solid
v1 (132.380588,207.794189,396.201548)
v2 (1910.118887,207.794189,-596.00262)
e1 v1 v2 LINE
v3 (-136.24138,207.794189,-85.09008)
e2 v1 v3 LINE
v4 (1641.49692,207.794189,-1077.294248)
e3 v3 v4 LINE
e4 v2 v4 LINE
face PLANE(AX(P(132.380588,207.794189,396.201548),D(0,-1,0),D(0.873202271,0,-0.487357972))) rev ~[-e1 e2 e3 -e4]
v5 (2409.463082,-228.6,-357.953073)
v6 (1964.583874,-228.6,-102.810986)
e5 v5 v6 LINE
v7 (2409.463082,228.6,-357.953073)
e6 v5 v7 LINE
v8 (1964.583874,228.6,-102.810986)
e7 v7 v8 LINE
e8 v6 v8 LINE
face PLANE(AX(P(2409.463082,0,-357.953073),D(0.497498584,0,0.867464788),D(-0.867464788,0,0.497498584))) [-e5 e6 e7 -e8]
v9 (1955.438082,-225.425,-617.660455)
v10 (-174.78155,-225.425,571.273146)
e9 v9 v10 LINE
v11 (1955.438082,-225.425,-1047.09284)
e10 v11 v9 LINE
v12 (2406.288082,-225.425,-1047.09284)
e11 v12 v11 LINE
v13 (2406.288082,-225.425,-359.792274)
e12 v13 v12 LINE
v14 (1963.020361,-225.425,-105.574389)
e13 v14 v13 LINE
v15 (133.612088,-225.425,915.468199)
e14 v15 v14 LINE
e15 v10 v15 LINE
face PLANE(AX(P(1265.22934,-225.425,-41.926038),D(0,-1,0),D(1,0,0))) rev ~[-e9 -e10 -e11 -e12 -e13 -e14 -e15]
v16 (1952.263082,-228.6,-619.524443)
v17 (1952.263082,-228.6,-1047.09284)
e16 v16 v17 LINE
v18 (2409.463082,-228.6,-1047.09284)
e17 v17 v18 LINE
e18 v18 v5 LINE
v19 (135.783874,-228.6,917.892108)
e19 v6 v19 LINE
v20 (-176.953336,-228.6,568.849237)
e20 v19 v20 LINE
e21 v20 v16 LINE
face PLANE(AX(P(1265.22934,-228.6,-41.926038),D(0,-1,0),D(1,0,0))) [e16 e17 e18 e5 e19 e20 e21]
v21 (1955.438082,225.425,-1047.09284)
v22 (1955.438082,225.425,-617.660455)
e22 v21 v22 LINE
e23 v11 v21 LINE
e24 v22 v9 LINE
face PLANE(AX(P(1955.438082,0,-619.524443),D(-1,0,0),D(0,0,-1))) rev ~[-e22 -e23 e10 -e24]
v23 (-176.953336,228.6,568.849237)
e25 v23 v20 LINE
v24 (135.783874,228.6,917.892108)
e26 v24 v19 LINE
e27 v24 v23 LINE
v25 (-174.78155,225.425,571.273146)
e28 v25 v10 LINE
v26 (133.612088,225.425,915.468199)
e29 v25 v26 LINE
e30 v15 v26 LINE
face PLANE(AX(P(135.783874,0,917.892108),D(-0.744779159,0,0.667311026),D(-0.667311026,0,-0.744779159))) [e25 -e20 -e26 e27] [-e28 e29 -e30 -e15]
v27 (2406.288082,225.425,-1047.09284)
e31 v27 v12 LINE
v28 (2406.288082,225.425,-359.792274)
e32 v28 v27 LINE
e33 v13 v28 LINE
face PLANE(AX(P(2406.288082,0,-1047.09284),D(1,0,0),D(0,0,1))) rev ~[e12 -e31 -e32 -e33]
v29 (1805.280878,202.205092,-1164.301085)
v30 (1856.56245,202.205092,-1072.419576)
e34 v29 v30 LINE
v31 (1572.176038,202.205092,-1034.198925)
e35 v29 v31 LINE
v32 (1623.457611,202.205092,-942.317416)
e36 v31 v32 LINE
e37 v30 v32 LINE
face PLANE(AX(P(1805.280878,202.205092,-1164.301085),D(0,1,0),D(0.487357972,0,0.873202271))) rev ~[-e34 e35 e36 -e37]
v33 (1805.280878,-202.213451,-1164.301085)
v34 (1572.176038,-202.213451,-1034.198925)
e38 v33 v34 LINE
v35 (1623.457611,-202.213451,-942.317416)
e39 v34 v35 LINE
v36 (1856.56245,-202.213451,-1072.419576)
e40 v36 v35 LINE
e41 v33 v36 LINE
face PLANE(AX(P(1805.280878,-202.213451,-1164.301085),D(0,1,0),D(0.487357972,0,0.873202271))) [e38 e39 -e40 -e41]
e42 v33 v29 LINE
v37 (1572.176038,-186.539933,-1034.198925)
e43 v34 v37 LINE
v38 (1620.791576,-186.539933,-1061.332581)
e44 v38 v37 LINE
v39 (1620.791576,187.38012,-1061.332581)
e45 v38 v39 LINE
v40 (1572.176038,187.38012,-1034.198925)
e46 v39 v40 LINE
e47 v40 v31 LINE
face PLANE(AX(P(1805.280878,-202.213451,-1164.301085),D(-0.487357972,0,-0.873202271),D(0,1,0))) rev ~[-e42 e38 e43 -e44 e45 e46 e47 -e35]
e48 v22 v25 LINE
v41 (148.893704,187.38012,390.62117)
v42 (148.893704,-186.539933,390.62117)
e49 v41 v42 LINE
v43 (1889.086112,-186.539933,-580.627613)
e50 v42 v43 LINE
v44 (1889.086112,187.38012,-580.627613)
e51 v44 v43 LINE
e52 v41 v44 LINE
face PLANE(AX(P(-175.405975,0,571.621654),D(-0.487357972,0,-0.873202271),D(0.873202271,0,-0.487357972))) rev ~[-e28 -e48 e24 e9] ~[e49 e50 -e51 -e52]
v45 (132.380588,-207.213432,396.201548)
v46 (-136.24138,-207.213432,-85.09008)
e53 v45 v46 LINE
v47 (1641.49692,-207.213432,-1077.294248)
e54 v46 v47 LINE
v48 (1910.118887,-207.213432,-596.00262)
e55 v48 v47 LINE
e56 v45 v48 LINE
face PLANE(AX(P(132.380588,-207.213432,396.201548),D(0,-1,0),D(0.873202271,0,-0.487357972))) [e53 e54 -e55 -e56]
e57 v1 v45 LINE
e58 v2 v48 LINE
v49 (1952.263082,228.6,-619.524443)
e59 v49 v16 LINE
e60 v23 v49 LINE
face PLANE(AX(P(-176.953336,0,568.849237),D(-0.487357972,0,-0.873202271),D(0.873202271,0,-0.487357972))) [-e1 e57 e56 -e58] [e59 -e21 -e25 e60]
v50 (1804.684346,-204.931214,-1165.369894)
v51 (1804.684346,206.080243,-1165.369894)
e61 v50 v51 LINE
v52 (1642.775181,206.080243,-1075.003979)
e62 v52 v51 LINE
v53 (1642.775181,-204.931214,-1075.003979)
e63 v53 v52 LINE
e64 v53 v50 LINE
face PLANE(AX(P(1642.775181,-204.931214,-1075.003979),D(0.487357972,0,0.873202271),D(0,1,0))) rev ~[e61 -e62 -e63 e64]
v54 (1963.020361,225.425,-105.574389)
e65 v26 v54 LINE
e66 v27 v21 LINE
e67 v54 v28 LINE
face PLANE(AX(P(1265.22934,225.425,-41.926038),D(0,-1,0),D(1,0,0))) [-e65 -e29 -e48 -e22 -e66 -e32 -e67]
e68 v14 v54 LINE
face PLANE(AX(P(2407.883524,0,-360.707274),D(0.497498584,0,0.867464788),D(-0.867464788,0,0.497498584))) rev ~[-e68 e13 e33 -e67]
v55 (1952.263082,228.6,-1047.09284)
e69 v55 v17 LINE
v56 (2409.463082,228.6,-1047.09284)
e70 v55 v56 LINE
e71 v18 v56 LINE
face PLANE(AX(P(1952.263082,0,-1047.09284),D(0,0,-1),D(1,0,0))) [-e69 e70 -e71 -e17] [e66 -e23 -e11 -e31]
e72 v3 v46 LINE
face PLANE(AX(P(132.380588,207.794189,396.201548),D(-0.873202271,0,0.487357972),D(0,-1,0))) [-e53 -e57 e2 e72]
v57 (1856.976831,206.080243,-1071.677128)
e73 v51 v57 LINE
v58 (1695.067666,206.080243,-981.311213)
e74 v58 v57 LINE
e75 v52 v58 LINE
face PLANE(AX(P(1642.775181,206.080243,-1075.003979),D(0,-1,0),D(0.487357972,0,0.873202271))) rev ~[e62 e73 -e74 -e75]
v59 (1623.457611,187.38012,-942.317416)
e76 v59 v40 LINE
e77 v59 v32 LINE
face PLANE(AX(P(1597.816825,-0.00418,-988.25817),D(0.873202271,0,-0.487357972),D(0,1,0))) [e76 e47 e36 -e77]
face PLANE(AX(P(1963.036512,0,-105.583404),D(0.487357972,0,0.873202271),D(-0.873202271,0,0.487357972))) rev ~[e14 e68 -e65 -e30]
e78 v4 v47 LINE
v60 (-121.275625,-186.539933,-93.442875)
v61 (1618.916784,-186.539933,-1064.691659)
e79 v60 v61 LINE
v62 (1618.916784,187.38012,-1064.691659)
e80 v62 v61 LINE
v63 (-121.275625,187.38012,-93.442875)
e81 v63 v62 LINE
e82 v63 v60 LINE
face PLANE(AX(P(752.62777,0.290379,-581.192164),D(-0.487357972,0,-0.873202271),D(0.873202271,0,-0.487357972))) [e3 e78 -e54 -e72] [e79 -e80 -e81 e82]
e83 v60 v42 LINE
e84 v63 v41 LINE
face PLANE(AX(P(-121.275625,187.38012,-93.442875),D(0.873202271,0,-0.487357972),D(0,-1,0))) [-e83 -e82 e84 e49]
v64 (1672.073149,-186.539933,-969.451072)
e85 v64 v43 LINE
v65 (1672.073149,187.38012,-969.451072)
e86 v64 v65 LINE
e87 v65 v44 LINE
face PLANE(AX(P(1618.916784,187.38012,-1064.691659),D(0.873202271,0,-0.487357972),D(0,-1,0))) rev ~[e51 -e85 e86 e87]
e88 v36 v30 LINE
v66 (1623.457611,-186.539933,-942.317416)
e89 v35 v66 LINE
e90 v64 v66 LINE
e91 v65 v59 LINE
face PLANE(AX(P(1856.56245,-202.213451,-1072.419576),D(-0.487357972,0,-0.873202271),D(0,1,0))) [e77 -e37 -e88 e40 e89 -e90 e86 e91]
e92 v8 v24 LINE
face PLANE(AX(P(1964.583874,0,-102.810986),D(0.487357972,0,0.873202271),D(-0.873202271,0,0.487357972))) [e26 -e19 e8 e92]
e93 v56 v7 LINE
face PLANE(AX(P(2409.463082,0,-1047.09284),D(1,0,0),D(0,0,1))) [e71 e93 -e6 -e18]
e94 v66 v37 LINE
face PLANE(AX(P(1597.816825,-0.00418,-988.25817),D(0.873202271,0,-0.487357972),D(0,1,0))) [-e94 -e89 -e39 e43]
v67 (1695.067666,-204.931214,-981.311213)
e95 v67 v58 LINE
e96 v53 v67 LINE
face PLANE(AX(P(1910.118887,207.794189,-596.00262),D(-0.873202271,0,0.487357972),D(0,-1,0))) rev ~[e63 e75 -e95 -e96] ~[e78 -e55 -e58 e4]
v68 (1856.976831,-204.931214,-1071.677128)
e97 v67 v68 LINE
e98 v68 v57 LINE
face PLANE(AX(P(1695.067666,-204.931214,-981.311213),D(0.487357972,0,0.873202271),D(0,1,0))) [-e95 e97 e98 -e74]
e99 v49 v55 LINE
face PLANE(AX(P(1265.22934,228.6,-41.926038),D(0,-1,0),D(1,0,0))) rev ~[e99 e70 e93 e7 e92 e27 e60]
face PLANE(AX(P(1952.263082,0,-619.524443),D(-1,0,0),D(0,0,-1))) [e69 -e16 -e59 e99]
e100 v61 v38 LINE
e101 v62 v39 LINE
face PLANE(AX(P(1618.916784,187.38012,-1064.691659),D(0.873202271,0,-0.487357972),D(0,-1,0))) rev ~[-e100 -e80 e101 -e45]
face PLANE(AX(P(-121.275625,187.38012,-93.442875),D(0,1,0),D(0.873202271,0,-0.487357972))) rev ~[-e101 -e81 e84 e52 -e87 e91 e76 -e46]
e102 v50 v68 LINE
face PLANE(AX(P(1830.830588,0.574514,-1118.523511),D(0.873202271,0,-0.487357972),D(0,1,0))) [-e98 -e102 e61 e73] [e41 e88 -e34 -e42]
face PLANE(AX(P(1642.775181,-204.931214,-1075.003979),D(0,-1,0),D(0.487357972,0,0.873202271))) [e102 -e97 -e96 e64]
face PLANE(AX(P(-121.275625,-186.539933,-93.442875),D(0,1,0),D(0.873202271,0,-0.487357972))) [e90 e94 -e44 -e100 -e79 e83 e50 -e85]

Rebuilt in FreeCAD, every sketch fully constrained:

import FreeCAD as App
import Part
import Sketcher

V = App.Vector
Q = App.Units.Quantity


def faces_at(feature, points):
    """Names of the faces that lie closest to the given points."""
    faces = feature.Shape.Faces
    near = lambda p: min(range(len(faces)), key=lambda i: faces[i].distToShape(Part.Vertex(*p))[0])
    return sorted({f"Face{near(p) + 1}" for p in points})


def add_polygon(sketch, points):
    """Adds a closed chain of lines whose ends are joined by coincident constraints."""
    first, n = sketch.GeometryCount, len(points)
    for a, b in zip(points, points[1:] + points[:1]):
        sketch.addGeometry(Part.LineSegment(App.Vector(*a, 0), App.Vector(*b, 0)), False)
    for i in range(n):
        sketch.addConstraint(Sketcher.Constraint("Coincident", first + i, 2, first + (i + 1) % n, 1))

doc = App.newDocument("Part")
body = doc.addObject("PartDesign::Body", "Body")

sketch1 = body.newObject("Sketcher::SketchObject", "Sketch")
sketch1.AttachmentSupport = (doc.getObject("XZ_Plane"), [""])
sketch1.MapMode = "FlatFace"
add_polygon(sketch1, [(1965, -103), (136, 918), (-177, 569), (1952, -620), (1952, -1047), (2409, -1047), (2409, -358)])
sketch1.addConstraint(Sketcher.Constraint("Vertical", 3))
sketch1.addConstraint(Sketcher.Constraint("Horizontal", 4))
sketch1.addConstraint(Sketcher.Constraint("Vertical", 5))
sketch1.addConstraint(Sketcher.Constraint("Parallel", 0, 2))
sketch1.addConstraint(Sketcher.Constraint("DistanceX", 4, 1, 4, 2, Q("18 in")))
sketch1.addConstraint(Sketcher.Constraint("Distance", 2, Q("96 in")))
sketch1.addConstraint(Sketcher.Constraint("DistanceX", 0, 2, 6, 2, Q("72 in")))
sketch1.addConstraint(Sketcher.Constraint("DistanceY", 3, 2, 3, 1, 427.568397))
sketch1.addConstraint(Sketcher.Constraint("DistanceY", 5, 1, 5, 2, 689.139767))
sketch1.addConstraint(Sketcher.Constraint("DistanceY", 3, 2, -1, 1, 1047.09284))
sketch1.addConstraint(Sketcher.Constraint("DistanceX", 1, 2, 0, 2, 312.73721))
sketch1.addConstraint(Sketcher.Constraint("DistanceY", 1, 2, 0, 2, 349.042871))
sketch1.addConstraint(Sketcher.Constraint("DistanceX", 0, 2, 2, 2, 1816.479209))
sketch1.addConstraint(Sketcher.Constraint("DistanceX", -1, 1, 0, 2, 135.783874))
pad1 = body.newObject("PartDesign::Pad", "Pad")
pad1.Profile = sketch1
pad1.Length = Q("18 in")
pad1.Midplane = True
doc.recompute()

thickness = body.newObject("PartDesign::Thickness", "Thickness")
thickness.Base = (pad1, faces_at(pad1, [(2180.863, 0, -1047.093), (-20.585, 0, 743.371)]))
thickness.Value = Q("0.125 in")
thickness.Reversed = True
thickness.Join = "Intersection"

sketch2 = body.newObject("Sketcher::SketchObject", "Sketch001")
sketch2.Placement = App.Placement(V(200.051103, 0, 358.43279), App.Rotation(V(0.873202271, 0, -0.487357972), V(0, -0.999999999, 0), V(-0.487357972, 0, -0.873202271), "ZXY"))
add_polygon(sketch2, [(-77, 207), (-77, -208), (1958, -208), (1958, 207)])
sketch2.addConstraint(Sketcher.Constraint("Vertical", 0))
sketch2.addConstraint(Sketcher.Constraint("Horizontal", 1))
sketch2.addConstraint(Sketcher.Constraint("Vertical", 2))
sketch2.addConstraint(Sketcher.Constraint("Horizontal", 3))
sketch2.addConstraint(Sketcher.Constraint("DistanceX", 1, 1, 1, 2, 2035.88373))
sketch2.addConstraint(Sketcher.Constraint("DistanceY", 0, 2, 0, 1, 415.00762))
sketch2.addConstraint(Sketcher.Constraint("DistanceY", 0, 2, -1, 1, 207.794189))
sketch2.addConstraint(Sketcher.Constraint("DistanceX", 0, 2, -1, 1, 77.496953))
pad2 = body.newObject("PartDesign::Pad", "Pad001")
pad2.Profile = sketch2
pad2.Length = Q("21.7 in")

sketch3 = body.newObject("Sketcher::SketchObject", "Sketch002")
sketch3.Placement = App.Placement(V(-68.570864, 0, -122.858838), App.Rotation(V(0.873202271, 0, -0.487357972), V(0, -0.999999999, 0), V(-0.487357972, 0, -0.873202271), "ZXY"))
add_polygon(sketch3, [(-60, 187), (-60, -187), (1933, -187), (1933, 187)])
sketch3.addConstraint(Sketcher.Constraint("Vertical", 0))
sketch3.addConstraint(Sketcher.Constraint("Horizontal", 1))
sketch3.addConstraint(Sketcher.Constraint("Vertical", 2))
sketch3.addConstraint(Sketcher.Constraint("Horizontal", 3))
sketch3.addConstraint(Sketcher.Constraint("DistanceX", 1, 1, 1, 2, 1992.8858))
sketch3.addConstraint(Sketcher.Constraint("DistanceX", 0, 2, -1, 1, Q("2.3763001 in")))
sketch3.addConstraint(Sketcher.Constraint("DistanceY", 0, 2, 0, 1, 373.920052))
sketch3.addConstraint(Sketcher.Constraint("DistanceY", 0, 2, -1, 1, 187.38012))
pocket1 = body.newObject("PartDesign::Pocket", "Pocket")
pocket1.Profile = sketch3
pocket1.Length = Q("29.9 in")

sketch4 = body.newObject("Sketcher::SketchObject", "Sketch003")
sketch4.Placement = App.Placement(V(1710.067783, 0, -954.43541), App.Rotation(V(0, 1, 0), V(0.487357972, 0, 0.873202271), V(0.873202271, 0, -0.487357972), "ZXY"))
add_polygon(sketch4, [(-205, -31), (-205, -138), (206, -138), (206, -31)])
sketch4.addConstraint(Sketcher.Constraint("Vertical", 0))
sketch4.addConstraint(Sketcher.Constraint("Horizontal", 1))
sketch4.addConstraint(Sketcher.Constraint("Vertical", 2))
sketch4.addConstraint(Sketcher.Constraint("Horizontal", 3))
sketch4.addConstraint(Sketcher.Constraint("DistanceX", 1, 1, 1, 2, 411.011457))
sketch4.addConstraint(Sketcher.Constraint("DistanceY", 0, 2, 0, 1, 107.297895))
sketch4.addConstraint(Sketcher.Constraint("DistanceY", 2, 2, -1, 1, 30.77844))
sketch4.addConstraint(Sketcher.Constraint("DistanceX", 0, 2, -1, 1, 204.931214))
pad3 = body.newObject("PartDesign::Pad", "Pad002")
pad3.Profile = sketch4
pad3.Length = Q("7.3 in")

sketch5 = body.newObject("Sketcher::SketchObject", "Sketch004")
sketch5.Placement = App.Placement(V(1871.976949, 0, -1044.801325), App.Rotation(V(0, 1, 0), V(0.487357972, 0, 0.873202271), V(0.873202271, 0, -0.487357972), "ZXY"))
add_polygon(sketch5, [(-202, -32), (-202, -137), (202, -137), (202, -32)])
sketch5.addConstraint(Sketcher.Constraint("Vertical", 0))
sketch5.addConstraint(Sketcher.Constraint("Horizontal", 1))
sketch5.addConstraint(Sketcher.Constraint("Vertical", 2))
sketch5.addConstraint(Sketcher.Constraint("Horizontal", 3))
sketch5.addConstraint(Sketcher.Constraint("DistanceY", 2, 2, -1, 1, 31.628698))
sketch5.addConstraint(Sketcher.Constraint("DistanceX", 1, 1, 1, 2, 404.418543))
sketch5.addConstraint(Sketcher.Constraint("DistanceY", 0, 2, 0, 1, 105.223626))
sketch5.addConstraint(Sketcher.Constraint("DistanceX", 0, 2, -1, 1, 202.213451))
pocket2 = body.newObject("PartDesign::Pocket", "Pocket001")
pocket2.Profile = sketch5
pocket2.Length = Q("10.51 in")

doc.recompute()
